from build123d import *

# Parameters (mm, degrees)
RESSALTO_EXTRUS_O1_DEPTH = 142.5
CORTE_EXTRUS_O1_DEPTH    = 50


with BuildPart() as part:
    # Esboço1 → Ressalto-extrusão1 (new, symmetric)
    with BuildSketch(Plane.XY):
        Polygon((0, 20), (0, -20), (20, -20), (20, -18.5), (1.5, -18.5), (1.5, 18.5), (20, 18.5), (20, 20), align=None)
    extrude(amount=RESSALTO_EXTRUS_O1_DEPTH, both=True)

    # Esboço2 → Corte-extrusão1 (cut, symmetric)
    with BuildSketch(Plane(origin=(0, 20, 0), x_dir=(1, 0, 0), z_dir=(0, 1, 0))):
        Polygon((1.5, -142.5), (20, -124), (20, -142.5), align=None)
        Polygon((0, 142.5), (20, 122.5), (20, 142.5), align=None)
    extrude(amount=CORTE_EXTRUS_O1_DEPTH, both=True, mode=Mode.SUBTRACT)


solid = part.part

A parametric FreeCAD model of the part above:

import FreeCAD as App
import Part
import Sketcher

V = App.Vector
Q = App.Units.Quantity

doc = App.newDocument("Part")
body = doc.addObject("PartDesign::Body", "Body")

# Sketch on XY plane
sketch1 = doc.addObject("Sketcher::SketchObject", "Sketch")
body.addObject(sketch1)
sketch1.AttachmentSupport = (doc.XY_Plane, [""])
sketch1.MapMode = "FlatFace"
sketch1.addGeometry(Part.LineSegment(V(0, 20, 0), V(0, -20, 0)), False)
sketch1.addGeometry(Part.LineSegment(V(0, -20, 0), V(20, -20, 0)), False)
sketch1.addGeometry(Part.LineSegment(V(20, -20, 0), V(20, -18.5, 0)), False)
sketch1.addGeometry(Part.LineSegment(V(20, -18.5, 0), V(1.5, -18.5, 0)), False)
sketch1.addGeometry(Part.LineSegment(V(1.5, -18.5, 0), V(1.5, 18.5, 0)), False)
sketch1.addGeometry(Part.LineSegment(V(1.5, 18.5, 0), V(20, 18.5, 0)), False)
sketch1.addGeometry(Part.LineSegment(V(20, 18.5, 0), V(20, 20, 0)), False)
sketch1.addGeometry(Part.LineSegment(V(20, 20, 0), V(0, 20, 0)), False)
sketch1.addConstraint(Sketcher.Constraint("Coincident", 0, 2, 1, 1))
sketch1.addConstraint(Sketcher.Constraint("Coincident", 1, 2, 2, 1))
sketch1.addConstraint(Sketcher.Constraint("Coincident", 2, 2, 3, 1))
sketch1.addConstraint(Sketcher.Constraint("Coincident", 3, 2, 4, 1))
sketch1.addConstraint(Sketcher.Constraint("Coincident", 4, 2, 5, 1))
sketch1.addConstraint(Sketcher.Constraint("Coincident", 5, 2, 6, 1))
sketch1.addConstraint(Sketcher.Constraint("Coincident", 6, 2, 7, 1))
sketch1.addConstraint(Sketcher.Constraint("Coincident", 7, 2, 0, 1))
sketch1.addConstraint(Sketcher.Constraint("Vertical", 0))
sketch1.addConstraint(Sketcher.Constraint("Horizontal", 1))
sketch1.addConstraint(Sketcher.Constraint("Vertical", 2))
sketch1.addConstraint(Sketcher.Constraint("Horizontal", 3))
sketch1.addConstraint(Sketcher.Constraint("Vertical", 4))
sketch1.addConstraint(Sketcher.Constraint("Horizontal", 5))
sketch1.addConstraint(Sketcher.Constraint("Vertical", 6))
sketch1.addConstraint(Sketcher.Constraint("Horizontal", 7))
sketch1.addConstraint(Sketcher.Constraint("Symmetric", 0, 2, 7, 2, -1, 1))
sketch1.addConstraint(Sketcher.Constraint("Symmetric", 2, 2, 5, 2, -1))
sketch1.addConstraint(Sketcher.Constraint("DistanceX", 1, 1, 1, 2, Q("20 mm")))
sketch1.addConstraint(Sketcher.Constraint("DistanceY", 0, 2, 0, 1, Q("40 mm")))
sketch1.addConstraint(Sketcher.Constraint("DistanceY", 4, 1, 4, 2, Q("37 mm")))
sketch1.addConstraint(Sketcher.Constraint("DistanceX", 3, 2, 3, 1, Q("18.5 mm")))
pad1 = doc.addObject("PartDesign::Pad", "Pad")
body.addObject(pad1)
pad1.Profile = sketch1
pad1.Length = 285
pad1.Midplane = True

# Sketch on XZ plane
sketch2 = doc.addObject("Sketcher::SketchObject", "Sketch001")
body.addObject(sketch2)
sketch2.AttachmentSupport = (doc.XZ_Plane, [""])
sketch2.MapMode = "FlatFace"
sketch2.AttachmentOffset = App.Placement(V(0, 0, -20), App.Rotation())
sketch2.addGeometry(Part.LineSegment(V(20, 124, 0), V(2, 142, 0)), False)
sketch2.addGeometry(Part.LineSegment(V(2, 142, 0), V(20, 142, 0)), False)
sketch2.addGeometry(Part.LineSegment(V(20, 142, 0), V(20, 124, 0)), False)
sketch2.addGeometry(Part.LineSegment(V(0, -142, 0), V(20, -122, 0)), False)
sketch2.addGeometry(Part.LineSegment(V(20, -122, 0), V(20, -142, 0)), False)
sketch2.addGeometry(Part.LineSegment(V(20, -142, 0), V(0, -142, 0)), False)
sketch2.addConstraint(Sketcher.Constraint("Coincident", 0, 2, 1, 1))
sketch2.addConstraint(Sketcher.Constraint("Coincident", 1, 2, 2, 1))
sketch2.addConstraint(Sketcher.Constraint("Coincident", 2, 2, 0, 1))
sketch2.addConstraint(Sketcher.Constraint("Coincident", 3, 2, 4, 1))
sketch2.addConstraint(Sketcher.Constraint("Coincident", 4, 2, 5, 1))
sketch2.addConstraint(Sketcher.Constraint("Coincident", 5, 2, 3, 1))
sketch2.addConstraint(Sketcher.Constraint("Horizontal", 1))
sketch2.addConstraint(Sketcher.Constraint("Vertical", 2))
sketch2.addConstraint(Sketcher.Constraint("Vertical", 4))
sketch2.addConstraint(Sketcher.Constraint("Horizontal", 5))
sketch2.addConstraint(Sketcher.Constraint("Symmetric", 1, 2, 4, 2, -1))
sketch2.addConstraint(Sketcher.Constraint("PointOnObject", 5, 2, -2))
sketch2.addConstraint(Sketcher.Constraint("Perpendicular", 0, 3))
sketch2.addConstraint(Sketcher.Constraint("Equal", 1, 2))
sketch2.addConstraint(Sketcher.Constraint("DistanceX", 5, 2, 5, 1, Q("20 mm")))
sketch2.addConstraint(Sketcher.Constraint("DistanceX", 1, 1, 1, 2, Q("18.5 mm")))
sketch2.addConstraint(Sketcher.Constraint("DistanceY", -1, 1, 2, 2, Q("124 mm")))
pocket1 = doc.addObject("PartDesign::Pocket", "Pocket")
body.addObject(pocket1)
pocket1.Profile = sketch2
pocket1.Length = 100
pocket1.Midplane = True

doc.recompute()
